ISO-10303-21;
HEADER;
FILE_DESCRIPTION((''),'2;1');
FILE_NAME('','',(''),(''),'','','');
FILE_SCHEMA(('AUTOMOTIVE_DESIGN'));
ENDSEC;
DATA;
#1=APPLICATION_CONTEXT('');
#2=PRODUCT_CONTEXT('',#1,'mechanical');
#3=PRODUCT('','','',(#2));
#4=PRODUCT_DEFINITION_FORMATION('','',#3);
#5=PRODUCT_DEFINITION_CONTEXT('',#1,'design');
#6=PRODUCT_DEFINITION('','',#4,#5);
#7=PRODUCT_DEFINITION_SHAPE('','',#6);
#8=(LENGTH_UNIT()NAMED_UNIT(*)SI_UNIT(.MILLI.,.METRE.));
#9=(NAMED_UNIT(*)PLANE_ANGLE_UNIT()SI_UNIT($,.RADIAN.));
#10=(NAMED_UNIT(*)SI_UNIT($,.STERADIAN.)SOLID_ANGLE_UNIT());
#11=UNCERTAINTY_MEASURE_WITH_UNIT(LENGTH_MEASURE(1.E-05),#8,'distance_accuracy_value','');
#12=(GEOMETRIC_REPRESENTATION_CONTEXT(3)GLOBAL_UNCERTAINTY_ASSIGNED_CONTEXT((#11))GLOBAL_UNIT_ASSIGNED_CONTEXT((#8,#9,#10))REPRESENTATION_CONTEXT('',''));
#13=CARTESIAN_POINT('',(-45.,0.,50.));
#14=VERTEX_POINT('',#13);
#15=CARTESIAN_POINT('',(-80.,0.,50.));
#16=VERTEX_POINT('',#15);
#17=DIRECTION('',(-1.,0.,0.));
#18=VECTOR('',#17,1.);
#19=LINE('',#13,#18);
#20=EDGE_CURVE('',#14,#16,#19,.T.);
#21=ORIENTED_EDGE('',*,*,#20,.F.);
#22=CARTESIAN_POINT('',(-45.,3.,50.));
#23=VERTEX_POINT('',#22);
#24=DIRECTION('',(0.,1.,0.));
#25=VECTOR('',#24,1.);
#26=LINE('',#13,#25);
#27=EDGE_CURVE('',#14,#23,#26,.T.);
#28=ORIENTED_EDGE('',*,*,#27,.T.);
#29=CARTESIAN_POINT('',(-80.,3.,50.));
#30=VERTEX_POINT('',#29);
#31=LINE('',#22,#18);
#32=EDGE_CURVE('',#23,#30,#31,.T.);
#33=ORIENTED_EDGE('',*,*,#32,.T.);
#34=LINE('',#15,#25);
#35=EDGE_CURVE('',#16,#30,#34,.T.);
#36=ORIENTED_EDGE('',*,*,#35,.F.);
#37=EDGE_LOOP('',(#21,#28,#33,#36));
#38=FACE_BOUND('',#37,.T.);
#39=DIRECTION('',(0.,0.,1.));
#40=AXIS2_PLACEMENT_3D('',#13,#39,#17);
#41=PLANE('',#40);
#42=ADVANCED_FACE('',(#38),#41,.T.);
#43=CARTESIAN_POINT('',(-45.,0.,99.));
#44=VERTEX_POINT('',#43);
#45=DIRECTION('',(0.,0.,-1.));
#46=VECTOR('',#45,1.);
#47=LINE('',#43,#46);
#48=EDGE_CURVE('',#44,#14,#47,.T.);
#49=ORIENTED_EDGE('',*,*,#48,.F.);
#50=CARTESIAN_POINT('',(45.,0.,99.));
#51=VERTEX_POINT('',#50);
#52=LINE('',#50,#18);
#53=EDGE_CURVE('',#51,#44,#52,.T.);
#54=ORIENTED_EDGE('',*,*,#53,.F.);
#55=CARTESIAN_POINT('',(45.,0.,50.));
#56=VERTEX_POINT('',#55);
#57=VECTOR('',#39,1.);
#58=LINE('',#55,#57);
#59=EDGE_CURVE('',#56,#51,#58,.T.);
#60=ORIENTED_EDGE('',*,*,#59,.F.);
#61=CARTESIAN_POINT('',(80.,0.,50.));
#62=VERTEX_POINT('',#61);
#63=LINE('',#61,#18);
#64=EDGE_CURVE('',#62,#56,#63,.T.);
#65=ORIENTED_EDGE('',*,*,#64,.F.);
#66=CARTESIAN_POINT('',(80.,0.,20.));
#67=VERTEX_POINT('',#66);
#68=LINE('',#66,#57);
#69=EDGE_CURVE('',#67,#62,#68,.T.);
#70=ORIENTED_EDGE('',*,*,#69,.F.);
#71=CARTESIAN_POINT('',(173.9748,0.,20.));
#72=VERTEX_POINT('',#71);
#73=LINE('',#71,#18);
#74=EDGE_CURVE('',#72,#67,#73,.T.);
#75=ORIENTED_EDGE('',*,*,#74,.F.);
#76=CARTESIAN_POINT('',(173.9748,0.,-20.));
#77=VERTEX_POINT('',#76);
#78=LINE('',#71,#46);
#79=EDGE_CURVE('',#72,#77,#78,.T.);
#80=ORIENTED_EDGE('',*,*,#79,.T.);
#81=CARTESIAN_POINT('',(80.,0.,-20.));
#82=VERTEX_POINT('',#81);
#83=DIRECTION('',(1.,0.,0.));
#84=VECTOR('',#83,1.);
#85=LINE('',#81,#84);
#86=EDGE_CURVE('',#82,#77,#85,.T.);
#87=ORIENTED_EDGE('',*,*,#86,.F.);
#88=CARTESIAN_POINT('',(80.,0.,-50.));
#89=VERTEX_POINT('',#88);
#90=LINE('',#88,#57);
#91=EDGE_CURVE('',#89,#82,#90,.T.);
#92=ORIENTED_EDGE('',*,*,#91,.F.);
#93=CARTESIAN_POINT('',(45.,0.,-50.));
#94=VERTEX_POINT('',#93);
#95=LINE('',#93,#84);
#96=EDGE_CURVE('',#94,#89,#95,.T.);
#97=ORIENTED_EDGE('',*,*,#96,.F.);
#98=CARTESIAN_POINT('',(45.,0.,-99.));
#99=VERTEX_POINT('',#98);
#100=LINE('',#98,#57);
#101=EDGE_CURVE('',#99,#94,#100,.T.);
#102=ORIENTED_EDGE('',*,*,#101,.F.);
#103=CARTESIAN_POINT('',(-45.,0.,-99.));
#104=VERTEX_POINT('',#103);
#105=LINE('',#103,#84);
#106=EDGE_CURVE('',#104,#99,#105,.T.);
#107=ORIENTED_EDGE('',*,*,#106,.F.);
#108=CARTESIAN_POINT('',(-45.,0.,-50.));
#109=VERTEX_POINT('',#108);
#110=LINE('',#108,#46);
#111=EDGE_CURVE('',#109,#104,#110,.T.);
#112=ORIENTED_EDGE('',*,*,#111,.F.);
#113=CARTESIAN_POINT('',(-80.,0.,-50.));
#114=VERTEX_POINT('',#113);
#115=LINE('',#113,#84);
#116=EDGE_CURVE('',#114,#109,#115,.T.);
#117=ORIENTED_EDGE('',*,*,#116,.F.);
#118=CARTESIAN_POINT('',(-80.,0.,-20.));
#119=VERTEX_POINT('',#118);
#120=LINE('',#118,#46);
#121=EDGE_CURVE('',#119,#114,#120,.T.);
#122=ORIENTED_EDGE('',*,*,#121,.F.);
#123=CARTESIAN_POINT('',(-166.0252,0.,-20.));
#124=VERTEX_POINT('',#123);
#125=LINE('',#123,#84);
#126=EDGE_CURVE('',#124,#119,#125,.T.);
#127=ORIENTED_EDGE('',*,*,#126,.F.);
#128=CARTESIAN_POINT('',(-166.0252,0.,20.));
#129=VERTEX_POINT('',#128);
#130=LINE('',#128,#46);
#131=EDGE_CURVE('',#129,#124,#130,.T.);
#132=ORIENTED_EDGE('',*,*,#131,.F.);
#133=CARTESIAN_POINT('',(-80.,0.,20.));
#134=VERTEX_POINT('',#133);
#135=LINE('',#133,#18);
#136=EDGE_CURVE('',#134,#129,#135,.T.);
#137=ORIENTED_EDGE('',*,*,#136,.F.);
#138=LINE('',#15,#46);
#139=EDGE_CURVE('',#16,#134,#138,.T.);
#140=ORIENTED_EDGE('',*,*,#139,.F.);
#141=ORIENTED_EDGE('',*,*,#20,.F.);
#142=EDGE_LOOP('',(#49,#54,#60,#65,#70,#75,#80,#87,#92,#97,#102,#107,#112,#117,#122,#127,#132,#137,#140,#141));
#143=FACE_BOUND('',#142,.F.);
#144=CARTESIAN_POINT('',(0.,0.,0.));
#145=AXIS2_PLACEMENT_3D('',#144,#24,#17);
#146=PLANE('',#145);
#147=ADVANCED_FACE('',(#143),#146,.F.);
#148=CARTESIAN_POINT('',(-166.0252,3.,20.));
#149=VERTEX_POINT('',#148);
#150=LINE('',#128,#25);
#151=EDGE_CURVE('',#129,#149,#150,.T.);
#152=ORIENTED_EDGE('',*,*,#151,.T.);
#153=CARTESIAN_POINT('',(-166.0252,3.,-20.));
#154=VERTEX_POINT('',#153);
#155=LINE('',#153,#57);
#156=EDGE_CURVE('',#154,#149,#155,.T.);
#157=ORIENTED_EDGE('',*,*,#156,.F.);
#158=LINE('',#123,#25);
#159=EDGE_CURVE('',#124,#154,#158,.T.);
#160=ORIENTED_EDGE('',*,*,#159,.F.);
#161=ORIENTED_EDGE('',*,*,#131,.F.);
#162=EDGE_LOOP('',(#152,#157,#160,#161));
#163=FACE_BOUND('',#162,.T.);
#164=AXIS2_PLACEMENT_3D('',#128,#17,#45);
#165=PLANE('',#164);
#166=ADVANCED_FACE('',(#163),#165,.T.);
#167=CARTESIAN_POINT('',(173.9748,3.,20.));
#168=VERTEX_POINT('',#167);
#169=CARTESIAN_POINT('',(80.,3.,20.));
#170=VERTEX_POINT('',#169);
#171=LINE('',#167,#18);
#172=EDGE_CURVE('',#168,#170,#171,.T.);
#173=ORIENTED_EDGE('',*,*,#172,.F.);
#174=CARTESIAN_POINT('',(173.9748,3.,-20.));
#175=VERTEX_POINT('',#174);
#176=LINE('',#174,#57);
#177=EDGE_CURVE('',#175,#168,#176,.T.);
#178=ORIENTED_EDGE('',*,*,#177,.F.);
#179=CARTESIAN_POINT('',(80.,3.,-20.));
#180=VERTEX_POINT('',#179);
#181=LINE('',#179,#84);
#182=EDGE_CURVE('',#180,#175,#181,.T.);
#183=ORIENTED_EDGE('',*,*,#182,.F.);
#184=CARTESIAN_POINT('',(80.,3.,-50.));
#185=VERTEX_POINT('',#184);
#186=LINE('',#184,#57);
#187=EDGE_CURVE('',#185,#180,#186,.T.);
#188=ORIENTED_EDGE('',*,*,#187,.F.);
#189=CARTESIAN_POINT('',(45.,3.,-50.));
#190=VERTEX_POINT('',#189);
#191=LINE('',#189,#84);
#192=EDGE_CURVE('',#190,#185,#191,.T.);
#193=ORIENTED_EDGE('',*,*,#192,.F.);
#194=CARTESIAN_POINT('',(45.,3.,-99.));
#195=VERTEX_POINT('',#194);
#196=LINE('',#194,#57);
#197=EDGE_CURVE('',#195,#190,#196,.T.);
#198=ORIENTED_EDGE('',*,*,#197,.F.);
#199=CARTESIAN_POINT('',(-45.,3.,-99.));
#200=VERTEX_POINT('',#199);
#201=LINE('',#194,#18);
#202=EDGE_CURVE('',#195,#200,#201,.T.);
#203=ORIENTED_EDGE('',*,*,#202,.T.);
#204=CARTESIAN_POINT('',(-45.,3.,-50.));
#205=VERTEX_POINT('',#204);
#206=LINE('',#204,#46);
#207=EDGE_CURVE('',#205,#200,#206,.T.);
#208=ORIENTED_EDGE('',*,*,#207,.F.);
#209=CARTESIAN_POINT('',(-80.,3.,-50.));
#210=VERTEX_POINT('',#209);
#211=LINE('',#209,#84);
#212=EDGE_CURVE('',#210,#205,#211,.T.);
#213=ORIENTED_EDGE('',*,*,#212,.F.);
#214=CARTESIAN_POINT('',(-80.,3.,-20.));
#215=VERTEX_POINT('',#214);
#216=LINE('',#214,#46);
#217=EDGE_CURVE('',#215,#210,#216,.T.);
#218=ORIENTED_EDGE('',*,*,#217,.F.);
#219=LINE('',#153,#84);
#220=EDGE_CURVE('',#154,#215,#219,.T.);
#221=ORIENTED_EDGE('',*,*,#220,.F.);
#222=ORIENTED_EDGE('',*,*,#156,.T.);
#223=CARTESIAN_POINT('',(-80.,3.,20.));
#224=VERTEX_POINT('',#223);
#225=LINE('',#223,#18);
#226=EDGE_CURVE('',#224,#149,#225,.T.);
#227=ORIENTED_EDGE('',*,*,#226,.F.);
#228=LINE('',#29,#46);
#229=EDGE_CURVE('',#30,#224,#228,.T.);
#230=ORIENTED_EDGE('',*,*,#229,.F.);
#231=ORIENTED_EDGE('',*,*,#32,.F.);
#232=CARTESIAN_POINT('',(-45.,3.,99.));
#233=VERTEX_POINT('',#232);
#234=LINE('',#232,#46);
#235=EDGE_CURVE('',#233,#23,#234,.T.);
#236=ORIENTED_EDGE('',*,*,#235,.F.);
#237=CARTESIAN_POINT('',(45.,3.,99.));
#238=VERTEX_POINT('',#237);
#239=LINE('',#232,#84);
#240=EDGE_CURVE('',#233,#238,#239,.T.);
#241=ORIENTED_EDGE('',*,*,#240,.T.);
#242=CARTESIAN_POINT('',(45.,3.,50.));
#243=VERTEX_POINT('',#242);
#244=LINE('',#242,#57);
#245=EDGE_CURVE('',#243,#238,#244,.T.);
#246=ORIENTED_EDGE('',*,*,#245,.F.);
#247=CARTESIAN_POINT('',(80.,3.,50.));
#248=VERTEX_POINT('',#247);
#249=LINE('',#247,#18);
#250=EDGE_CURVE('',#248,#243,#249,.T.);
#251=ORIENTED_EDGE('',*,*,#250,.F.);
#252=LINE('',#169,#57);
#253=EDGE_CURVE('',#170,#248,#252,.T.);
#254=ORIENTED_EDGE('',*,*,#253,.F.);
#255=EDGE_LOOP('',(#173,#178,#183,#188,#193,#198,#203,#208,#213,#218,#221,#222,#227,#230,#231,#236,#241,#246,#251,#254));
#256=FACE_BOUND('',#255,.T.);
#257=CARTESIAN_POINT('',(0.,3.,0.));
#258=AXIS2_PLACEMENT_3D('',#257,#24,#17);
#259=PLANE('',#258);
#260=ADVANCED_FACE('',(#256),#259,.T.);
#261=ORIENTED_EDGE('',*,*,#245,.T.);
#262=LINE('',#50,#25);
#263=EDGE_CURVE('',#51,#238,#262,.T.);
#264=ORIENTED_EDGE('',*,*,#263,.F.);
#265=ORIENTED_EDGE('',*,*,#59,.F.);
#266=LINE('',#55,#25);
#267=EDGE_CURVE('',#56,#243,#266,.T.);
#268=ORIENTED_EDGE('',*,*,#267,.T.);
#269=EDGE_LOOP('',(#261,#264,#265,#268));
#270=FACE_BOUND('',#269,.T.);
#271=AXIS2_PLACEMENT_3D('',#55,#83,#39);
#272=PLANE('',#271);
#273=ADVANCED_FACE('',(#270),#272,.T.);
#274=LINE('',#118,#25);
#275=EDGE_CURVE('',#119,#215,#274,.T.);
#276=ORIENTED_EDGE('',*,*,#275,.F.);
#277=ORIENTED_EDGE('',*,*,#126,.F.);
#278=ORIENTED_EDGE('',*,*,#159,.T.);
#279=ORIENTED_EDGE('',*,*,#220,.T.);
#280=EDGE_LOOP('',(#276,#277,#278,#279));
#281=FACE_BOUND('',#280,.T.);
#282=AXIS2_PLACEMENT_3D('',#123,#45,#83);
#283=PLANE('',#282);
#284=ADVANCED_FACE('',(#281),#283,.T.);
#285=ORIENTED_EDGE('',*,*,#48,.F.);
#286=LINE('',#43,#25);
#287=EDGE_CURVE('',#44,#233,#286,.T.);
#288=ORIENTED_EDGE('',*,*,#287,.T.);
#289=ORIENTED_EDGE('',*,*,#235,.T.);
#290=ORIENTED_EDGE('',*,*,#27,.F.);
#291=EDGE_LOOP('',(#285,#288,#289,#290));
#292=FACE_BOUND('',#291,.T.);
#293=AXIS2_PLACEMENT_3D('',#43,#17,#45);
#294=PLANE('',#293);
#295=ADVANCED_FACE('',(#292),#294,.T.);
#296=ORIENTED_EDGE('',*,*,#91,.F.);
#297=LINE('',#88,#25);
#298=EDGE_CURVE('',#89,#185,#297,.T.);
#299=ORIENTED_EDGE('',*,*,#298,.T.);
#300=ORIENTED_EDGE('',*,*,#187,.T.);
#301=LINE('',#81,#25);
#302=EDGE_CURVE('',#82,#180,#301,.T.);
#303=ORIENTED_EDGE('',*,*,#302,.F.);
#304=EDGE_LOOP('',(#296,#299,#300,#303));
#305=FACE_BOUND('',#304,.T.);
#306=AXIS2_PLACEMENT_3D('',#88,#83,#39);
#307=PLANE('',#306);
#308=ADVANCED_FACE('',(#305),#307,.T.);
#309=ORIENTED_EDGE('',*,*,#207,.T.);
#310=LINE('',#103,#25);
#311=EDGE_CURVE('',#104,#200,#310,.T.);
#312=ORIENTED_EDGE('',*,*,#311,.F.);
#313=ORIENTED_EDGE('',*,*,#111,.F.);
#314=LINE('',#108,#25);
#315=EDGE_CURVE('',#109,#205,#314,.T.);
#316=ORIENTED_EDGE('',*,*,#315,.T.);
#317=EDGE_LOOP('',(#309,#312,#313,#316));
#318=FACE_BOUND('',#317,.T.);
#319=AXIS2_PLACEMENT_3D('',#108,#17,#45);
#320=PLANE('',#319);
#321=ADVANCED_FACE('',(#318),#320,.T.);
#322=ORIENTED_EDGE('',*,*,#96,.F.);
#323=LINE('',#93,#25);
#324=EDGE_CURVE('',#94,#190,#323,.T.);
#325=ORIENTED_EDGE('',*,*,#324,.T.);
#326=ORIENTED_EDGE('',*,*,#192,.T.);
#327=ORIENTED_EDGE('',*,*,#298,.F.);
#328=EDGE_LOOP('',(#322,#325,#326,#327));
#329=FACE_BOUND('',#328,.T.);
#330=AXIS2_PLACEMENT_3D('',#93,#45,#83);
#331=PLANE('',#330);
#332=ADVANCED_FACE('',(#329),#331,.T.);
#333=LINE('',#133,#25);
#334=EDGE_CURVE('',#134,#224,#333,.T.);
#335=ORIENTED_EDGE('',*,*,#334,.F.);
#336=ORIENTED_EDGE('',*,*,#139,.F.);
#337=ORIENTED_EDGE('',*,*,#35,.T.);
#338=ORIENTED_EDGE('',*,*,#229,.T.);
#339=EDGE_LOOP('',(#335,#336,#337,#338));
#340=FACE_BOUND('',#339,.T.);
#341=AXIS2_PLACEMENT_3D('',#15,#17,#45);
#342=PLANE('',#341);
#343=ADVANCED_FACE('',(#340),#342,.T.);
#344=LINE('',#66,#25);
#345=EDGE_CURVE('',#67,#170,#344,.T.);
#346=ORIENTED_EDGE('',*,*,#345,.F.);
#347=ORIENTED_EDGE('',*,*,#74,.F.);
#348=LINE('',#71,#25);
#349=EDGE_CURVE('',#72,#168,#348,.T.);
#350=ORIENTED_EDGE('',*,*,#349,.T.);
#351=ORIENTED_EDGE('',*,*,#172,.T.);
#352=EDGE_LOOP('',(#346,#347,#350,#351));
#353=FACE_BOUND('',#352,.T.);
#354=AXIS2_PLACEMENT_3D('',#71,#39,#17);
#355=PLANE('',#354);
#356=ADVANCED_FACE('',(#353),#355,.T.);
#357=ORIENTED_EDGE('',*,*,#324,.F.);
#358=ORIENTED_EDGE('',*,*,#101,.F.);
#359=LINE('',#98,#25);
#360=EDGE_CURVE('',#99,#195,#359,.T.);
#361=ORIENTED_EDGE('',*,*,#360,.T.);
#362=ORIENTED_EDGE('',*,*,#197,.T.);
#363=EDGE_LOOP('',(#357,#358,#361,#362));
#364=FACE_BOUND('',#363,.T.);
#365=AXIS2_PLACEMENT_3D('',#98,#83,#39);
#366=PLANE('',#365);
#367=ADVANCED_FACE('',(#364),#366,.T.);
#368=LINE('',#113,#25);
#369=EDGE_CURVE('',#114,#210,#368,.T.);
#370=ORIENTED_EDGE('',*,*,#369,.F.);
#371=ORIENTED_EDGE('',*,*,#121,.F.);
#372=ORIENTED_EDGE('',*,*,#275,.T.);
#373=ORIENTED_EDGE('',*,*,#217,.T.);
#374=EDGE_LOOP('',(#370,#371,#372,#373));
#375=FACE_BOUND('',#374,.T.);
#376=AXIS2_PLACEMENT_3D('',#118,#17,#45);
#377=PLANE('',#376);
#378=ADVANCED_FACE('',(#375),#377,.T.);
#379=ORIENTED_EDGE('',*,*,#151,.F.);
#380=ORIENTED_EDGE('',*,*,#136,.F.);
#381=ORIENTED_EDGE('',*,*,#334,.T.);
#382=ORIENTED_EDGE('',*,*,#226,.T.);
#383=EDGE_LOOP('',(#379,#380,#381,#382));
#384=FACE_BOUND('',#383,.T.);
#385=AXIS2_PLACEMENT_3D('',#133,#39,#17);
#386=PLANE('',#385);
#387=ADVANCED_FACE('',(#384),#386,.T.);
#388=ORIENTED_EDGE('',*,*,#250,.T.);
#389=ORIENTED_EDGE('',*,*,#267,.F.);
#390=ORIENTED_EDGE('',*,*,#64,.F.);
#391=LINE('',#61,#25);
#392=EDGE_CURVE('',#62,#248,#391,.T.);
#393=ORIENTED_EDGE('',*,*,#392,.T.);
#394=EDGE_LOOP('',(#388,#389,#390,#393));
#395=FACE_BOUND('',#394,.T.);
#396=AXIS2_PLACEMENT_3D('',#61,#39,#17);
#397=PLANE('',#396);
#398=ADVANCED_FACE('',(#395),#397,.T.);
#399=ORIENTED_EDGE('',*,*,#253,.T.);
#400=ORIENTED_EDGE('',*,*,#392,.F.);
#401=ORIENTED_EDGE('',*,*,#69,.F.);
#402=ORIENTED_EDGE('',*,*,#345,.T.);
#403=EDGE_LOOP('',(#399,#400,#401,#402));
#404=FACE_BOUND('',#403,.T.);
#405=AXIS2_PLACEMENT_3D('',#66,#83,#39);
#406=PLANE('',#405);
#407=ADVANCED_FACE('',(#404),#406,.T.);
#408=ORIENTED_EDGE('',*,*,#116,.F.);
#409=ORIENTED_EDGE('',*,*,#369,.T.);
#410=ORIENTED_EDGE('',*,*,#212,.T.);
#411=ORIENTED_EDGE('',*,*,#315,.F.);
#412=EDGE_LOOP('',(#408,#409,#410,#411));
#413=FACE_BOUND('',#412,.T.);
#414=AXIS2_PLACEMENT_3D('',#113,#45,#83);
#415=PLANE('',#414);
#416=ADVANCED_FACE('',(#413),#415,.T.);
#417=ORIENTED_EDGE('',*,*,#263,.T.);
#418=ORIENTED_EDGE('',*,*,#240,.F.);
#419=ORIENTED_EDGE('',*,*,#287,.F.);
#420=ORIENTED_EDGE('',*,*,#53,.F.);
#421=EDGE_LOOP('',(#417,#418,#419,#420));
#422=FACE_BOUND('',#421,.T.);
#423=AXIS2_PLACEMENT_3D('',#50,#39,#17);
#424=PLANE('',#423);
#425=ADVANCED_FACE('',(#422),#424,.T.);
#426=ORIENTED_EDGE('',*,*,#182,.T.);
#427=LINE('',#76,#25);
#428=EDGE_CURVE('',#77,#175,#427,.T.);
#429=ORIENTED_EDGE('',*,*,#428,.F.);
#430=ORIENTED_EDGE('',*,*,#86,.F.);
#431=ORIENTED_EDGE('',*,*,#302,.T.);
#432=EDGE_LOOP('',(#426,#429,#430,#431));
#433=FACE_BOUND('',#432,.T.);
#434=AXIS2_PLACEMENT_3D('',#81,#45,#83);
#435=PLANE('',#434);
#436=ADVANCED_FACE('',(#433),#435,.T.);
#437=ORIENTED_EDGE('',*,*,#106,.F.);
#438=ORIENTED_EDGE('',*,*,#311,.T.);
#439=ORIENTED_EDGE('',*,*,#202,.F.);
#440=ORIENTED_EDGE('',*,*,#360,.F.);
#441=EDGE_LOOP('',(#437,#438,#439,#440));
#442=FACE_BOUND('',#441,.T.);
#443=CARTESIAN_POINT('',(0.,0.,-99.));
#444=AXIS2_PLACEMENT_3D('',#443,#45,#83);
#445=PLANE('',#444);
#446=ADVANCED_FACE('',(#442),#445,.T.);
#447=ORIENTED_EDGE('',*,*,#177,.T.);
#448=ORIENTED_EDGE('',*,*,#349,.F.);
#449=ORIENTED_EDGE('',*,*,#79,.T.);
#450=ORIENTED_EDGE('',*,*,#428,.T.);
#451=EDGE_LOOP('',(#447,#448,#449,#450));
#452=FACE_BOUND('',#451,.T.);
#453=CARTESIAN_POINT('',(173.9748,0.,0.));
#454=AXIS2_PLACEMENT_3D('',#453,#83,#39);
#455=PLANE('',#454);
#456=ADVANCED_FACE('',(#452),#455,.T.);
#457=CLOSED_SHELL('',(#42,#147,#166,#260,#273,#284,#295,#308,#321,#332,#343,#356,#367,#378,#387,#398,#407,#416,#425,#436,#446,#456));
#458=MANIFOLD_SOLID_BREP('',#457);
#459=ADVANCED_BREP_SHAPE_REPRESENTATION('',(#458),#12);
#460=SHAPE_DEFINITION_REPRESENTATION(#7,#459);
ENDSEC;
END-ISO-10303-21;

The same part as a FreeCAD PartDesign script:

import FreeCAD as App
import Part
import Sketcher
from FreeCAD import Vector
Q = App.Units.Quantity


def add_polygon(sketch, points):
    """Adds a closed chain of lines whose ends are joined by coincident constraints."""
    first, n = sketch.GeometryCount, len(points)
    for a, b in zip(points, points[1:] + points[:1]):
        sketch.addGeometry(Part.LineSegment(App.Vector(*a, 0), App.Vector(*b, 0)), False)
    for i in range(n):
        sketch.addConstraint(Sketcher.Constraint("Coincident", first + i, 2, first + (i + 1) % n, 1))

doc = App.newDocument("Part")
params = doc.addObject("Spreadsheet::Sheet", "Params")
for row, (alias, value) in enumerate([
    ("sketch1_width", "90 mm"),
    ("sketch1_height", "40 mm"),
    ("sketch1_height2", "49 mm"),
    ("pad1_length", "3 mm"),
], start=1):
    params.set(f"A{row}", alias)
    params.set(f"B{row}", "=" + value)
    params.setAlias(f"B{row}", alias)

body = doc.addObject("PartDesign::Body", "Body")

# Sketch on XZ plane
sketch1 = doc.addObject("Sketcher::SketchObject", "Sketch")
body.addObject(sketch1)
sketch1.AttachmentSupport = (doc.XZ_Plane, [""])
sketch1.MapMode = "FlatFace"
add_polygon(sketch1, [(174, 20), (174, -20), (80, -20), (80, -50), (45, -50), (45, -99), (-45, -99), (-45, -50), (-80, -50), (-80, -20), (-166, -20), (-166, 20), (-80, 20), (-80, 50), (-45, 50), (-45, 99), (45, 99), (45, 50), (80, 50), (80, 20)])  # lines 0-19
sketch1.addConstraint([
    Sketcher.Constraint("Vertical", 0),
    Sketcher.Constraint("Horizontal", 1),
    Sketcher.Constraint("Vertical", 2),
    Sketcher.Constraint("Horizontal", 3),
    Sketcher.Constraint("Vertical", 4),
    Sketcher.Constraint("Horizontal", 5),
    Sketcher.Constraint("Vertical", 6),
    Sketcher.Constraint("Horizontal", 7),
    Sketcher.Constraint("Vertical", 8),
    Sketcher.Constraint("Horizontal", 9),
    Sketcher.Constraint("Vertical", 10),
    Sketcher.Constraint("Horizontal", 11),
    Sketcher.Constraint("Vertical", 12),
    Sketcher.Constraint("Horizontal", 13),
    Sketcher.Constraint("Vertical", 14),
    Sketcher.Constraint("Horizontal", 15),
    Sketcher.Constraint("Vertical", 16),
    Sketcher.Constraint("Horizontal", 17),
    Sketcher.Constraint("Vertical", 18),
    Sketcher.Constraint("Horizontal", 19),
    Sketcher.Constraint("Symmetric", 1, 2, 11, 2, -1, 1),
    Sketcher.Constraint("Symmetric", 3, 2, 13, 2, -1, 1),
    Sketcher.Constraint("Symmetric", 5, 2, 15, 2, -1, 1),
    Sketcher.Constraint("Symmetric", 7, 2, 17, 2, -1, 1),
    Sketcher.Constraint("Symmetric", 3, 2, 6, 2, -2),
    Sketcher.Constraint("Symmetric", 1, 2, 8, 2, -2),
    Sketcher.Constraint("Horizontal", 11, 2, 18, 2),
    Sketcher.Constraint("DistanceX", 5, 2, 5, 1, Q("90 mm")),
    Sketcher.Constraint("DistanceY", 0, 2, 0, 1, Q("40 mm")),
    Sketcher.Constraint("DistanceX", 7, 2, 2, 2, Q("160 mm")),
    Sketcher.Constraint("DistanceY", 7, 2, 12, 2, Q("100 mm")),
    Sketcher.Constraint("DistanceY", 4, 2, 4, 1, Q("49 mm")),
    Sketcher.Constraint("DistanceX", 9, 2, 9, 1, Q("86.0252 mm")),
    Sketcher.Constraint("DistanceX", 1, 2, 1, 1, Q("93.9748 mm")),
])
sketch1.setExpression("Constraints[47]", "Params.sketch1_width")
sketch1.setExpression("Constraints[48]", "Params.sketch1_height")
sketch1.setExpression("Constraints[51]", "Params.sketch1_height2")
pad1 = doc.addObject("PartDesign::Pad", "Pad")
body.addObject(pad1)
pad1.Profile = sketch1
pad1.setExpression("Length", "Params.pad1_length")
pad1.Reversed = True

doc.recompute()
